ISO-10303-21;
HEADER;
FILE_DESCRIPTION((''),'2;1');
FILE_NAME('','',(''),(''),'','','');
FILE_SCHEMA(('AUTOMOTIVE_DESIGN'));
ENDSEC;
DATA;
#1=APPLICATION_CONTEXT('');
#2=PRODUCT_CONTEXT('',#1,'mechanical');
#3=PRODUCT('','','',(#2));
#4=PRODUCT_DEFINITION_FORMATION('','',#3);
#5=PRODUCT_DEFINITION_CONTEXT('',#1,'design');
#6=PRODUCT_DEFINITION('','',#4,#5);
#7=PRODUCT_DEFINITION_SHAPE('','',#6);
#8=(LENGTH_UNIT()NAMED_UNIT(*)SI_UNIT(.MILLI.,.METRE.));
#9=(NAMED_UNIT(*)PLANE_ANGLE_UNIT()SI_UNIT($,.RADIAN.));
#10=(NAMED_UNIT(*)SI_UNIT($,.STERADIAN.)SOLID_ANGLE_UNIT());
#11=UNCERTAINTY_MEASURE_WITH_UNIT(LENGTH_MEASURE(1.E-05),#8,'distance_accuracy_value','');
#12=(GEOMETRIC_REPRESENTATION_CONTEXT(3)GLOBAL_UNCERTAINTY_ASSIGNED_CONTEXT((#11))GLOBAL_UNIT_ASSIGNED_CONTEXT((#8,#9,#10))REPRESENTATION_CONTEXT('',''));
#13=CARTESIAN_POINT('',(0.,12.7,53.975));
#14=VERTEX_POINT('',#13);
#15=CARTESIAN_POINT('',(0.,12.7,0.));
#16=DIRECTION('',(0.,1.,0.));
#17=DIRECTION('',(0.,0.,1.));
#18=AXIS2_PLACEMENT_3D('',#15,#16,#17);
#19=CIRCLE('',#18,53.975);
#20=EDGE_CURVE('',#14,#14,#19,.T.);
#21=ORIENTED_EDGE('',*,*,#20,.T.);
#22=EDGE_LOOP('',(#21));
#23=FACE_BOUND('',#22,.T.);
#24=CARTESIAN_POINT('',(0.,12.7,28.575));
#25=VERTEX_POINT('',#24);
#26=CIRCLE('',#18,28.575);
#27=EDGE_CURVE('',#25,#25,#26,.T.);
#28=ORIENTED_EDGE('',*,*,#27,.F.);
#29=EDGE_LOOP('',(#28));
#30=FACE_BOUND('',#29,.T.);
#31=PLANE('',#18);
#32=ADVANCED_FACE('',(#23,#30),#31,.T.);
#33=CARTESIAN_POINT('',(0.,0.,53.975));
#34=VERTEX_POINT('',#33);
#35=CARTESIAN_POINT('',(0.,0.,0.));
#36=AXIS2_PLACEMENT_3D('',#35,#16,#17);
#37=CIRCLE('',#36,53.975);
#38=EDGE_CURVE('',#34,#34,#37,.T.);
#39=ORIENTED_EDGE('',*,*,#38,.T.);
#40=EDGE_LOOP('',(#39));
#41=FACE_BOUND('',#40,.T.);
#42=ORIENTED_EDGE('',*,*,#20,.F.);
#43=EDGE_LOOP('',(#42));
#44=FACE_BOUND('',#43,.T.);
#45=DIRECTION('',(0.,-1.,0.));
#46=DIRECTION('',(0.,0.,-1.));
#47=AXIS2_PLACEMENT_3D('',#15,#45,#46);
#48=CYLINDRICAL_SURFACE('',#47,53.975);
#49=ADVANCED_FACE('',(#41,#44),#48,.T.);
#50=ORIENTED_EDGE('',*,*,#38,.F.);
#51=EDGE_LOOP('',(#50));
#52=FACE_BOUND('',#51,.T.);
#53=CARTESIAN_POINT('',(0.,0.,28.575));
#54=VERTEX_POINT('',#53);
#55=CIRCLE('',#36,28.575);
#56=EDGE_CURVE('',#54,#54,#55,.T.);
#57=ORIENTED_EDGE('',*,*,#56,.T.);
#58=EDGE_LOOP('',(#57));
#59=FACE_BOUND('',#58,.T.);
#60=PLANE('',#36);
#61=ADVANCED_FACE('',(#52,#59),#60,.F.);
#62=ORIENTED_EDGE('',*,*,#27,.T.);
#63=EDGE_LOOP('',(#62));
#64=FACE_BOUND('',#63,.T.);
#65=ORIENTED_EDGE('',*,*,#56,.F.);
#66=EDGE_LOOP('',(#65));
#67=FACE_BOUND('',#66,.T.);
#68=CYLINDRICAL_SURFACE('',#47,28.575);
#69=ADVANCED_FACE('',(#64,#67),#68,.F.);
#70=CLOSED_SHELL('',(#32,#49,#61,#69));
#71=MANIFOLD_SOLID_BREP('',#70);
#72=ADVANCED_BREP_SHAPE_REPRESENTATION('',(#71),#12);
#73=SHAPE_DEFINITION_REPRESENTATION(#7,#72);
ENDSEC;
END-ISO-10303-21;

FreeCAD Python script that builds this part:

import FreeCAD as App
import Part
import Sketcher
from FreeCAD import Vector
Q = App.Units.Quantity

doc = App.newDocument("Part")
params = doc.addObject("Spreadsheet::Sheet", "Params")
for row, (alias, value) in enumerate([
    ("sketch1_diameter", "4.25 in"),
    ("sketch1_diameter2", "2.25 in"),
    ("pad1_length", "0.5 in"),
], start=1):
    params.set(f"A{row}", alias)
    params.set(f"B{row}", "=" + value)
    params.setAlias(f"B{row}", alias)

body = doc.addObject("PartDesign::Body", "Body")

sketch1 = doc.addObject("Sketcher::SketchObject", "Sketch")
body.addObject(sketch1)
sketch1.AttachmentSupport = (doc.XZ_Plane, [""])
sketch1.MapMode = "FlatFace"
sketch1.addGeometry([
    Part.Circle(Vector(0, 0, 0), Vector(0, 0, 1), 53.975),
    Part.Circle(Vector(0, 0, 0), Vector(0, 0, 1), 28.575),
], False)
sketch1.addConstraint([
    Sketcher.Constraint("Coincident", 0, 3, -1, 1),
    Sketcher.Constraint("Coincident", 1, 3, -1, 1),
    Sketcher.Constraint("Diameter", 0, Q("4.25 in")),
    Sketcher.Constraint("Diameter", 1, Q("2.25 in")),
])
sketch1.setExpression("Constraints[2]", "Params.sketch1_diameter")
sketch1.setExpression("Constraints[3]", "Params.sketch1_diameter2")
pad1 = doc.addObject("PartDesign::Pad", "Pad")
body.addObject(pad1)
pad1.Profile = sketch1
pad1.setExpression("Length", "Params.pad1_length")
pad1.Reversed = True

doc.recompute()
